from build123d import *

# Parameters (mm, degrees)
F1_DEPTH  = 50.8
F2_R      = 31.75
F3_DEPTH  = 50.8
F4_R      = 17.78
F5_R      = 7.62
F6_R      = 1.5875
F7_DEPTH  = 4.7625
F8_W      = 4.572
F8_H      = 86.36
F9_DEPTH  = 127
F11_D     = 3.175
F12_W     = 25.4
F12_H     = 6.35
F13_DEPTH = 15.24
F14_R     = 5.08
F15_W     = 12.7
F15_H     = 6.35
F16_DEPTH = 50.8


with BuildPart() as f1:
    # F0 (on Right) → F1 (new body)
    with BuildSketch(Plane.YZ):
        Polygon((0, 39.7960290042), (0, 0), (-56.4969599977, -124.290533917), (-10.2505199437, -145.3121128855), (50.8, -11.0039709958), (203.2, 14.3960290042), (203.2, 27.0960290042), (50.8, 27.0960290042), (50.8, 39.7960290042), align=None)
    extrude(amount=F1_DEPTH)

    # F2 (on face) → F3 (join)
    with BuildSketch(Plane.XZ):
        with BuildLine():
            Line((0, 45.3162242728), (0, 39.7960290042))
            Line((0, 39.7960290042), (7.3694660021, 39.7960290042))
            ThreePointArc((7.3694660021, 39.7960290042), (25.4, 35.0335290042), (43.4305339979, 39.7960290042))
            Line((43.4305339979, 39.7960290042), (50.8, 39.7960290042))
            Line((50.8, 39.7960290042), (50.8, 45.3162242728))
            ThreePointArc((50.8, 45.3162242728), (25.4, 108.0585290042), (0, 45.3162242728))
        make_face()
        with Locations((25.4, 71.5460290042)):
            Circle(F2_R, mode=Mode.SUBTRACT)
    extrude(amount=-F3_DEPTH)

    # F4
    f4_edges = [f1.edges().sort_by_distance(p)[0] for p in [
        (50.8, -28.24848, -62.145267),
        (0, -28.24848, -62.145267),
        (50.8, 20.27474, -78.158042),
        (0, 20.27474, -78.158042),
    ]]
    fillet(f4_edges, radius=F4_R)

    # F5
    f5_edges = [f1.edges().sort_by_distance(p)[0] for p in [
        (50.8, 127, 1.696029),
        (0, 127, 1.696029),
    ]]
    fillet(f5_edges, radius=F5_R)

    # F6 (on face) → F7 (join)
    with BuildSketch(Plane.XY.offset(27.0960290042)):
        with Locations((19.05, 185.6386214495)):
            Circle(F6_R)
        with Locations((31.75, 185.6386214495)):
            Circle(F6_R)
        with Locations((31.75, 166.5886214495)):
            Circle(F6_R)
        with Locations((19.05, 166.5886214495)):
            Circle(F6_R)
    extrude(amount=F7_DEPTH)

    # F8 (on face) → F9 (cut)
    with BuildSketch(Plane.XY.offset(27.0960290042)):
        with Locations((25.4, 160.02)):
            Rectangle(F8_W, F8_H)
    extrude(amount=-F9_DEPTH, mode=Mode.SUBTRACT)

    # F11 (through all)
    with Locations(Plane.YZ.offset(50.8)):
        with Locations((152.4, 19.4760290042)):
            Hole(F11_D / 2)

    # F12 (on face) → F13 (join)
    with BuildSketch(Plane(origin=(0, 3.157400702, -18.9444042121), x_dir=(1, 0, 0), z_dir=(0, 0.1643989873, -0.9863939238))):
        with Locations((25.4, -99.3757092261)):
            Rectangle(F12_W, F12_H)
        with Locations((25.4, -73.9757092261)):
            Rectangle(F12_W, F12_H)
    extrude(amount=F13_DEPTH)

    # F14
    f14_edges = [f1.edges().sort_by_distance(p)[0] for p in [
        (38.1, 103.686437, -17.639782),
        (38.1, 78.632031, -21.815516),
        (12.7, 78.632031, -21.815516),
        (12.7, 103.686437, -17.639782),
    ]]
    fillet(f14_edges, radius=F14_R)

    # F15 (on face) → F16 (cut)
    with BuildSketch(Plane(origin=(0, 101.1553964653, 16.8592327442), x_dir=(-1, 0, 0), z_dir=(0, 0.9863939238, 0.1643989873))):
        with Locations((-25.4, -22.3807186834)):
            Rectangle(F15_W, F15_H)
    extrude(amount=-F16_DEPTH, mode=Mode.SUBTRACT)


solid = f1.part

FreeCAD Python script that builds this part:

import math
import FreeCAD as App
import Part
import Sketcher
Q = App.Units.Quantity


def edges_at(feature, points):
    """Names of the edges that pass closest to the given points."""
    edges = feature.Shape.Edges
    near = lambda p: min(range(len(edges)), key=lambda i: edges[i].distToShape(Part.Vertex(*p))[0])
    return sorted({f"Edge{near(p) + 1}" for p in points})


def add_polygon(sketch, points):
    """Adds a closed chain of lines whose ends are joined by coincident constraints."""
    first, n = sketch.GeometryCount, len(points)
    for a, b in zip(points, points[1:] + points[:1]):
        sketch.addGeometry(Part.LineSegment(App.Vector(*a, 0), App.Vector(*b, 0)), False)
    for i in range(n):
        sketch.addConstraint(Sketcher.Constraint("Coincident", first + i, 2, first + (i + 1) % n, 1))

doc = App.newDocument("Part")
body = doc.addObject("PartDesign::Body", "Body")

# Sketch on YZ plane
sketch1 = doc.addObject("Sketcher::SketchObject", "Sketch")
body.addObject(sketch1)
sketch1.AttachmentSupport = (doc.YZ_Plane, [""])
sketch1.MapMode = "FlatFace"
add_polygon(sketch1, [(0, 40), (0, 0), (-56, -124), (-10, -145), (51, -11), (203, 14), (203, 27), (51, 27), (51, 40)])  # lines 0-8
sketch1.addConstraint([
    Sketcher.Constraint("Vertical", 0),
    Sketcher.Constraint("Vertical", 5),
    Sketcher.Constraint("Horizontal", 6),
    Sketcher.Constraint("Vertical", 7),
    Sketcher.Constraint("Horizontal", 8),
    Sketcher.Constraint("Coincident", 0, 2, -1, 1),
    Sketcher.Constraint("Perpendicular", 1, 2),
    Sketcher.Constraint("Perpendicular", 2, 3),
    Sketcher.Constraint("Vertical", 3, 2, 6, 2),
    Sketcher.Constraint("Equal", 5, 7),
    Sketcher.Constraint("DistanceX", 6, 2, 6, 1, Q("6 in")),
    Sketcher.Constraint("DistanceX", 8, 2, 8, 1, Q("2 in")),
    Sketcher.Constraint("Distance", 2, Q("2 in")),
    Sketcher.Constraint("DistanceY", 5, 1, 5, 2, Q("0.5 in")),
    Sketcher.Constraint("DistanceY", 3, 2, 4, 2, Q("1 in")),
    Sketcher.Constraint("DistanceY", 0, 2, 0, 1, Q("39.796029 mm")),
    Sketcher.Constraint("DistanceX", 1, 2, -1, 1, Q("56.49696 mm")),
])
pad1 = doc.addObject("PartDesign::Pad", "Pad")
body.addObject(pad1)
pad1.Profile = sketch1
pad1.Length = Q("2 in")

# Sketch on XZ plane
sketch2 = doc.addObject("Sketcher::SketchObject", "Sketch001")
body.addObject(sketch2)
sketch2.AttachmentSupport = (doc.XZ_Plane, [""])
sketch2.MapMode = "FlatFace"
sketch2.addGeometry([
    Part.LineSegment(App.Vector(0, 45, 0), App.Vector(0, 40, 0)),  # 0
    Part.LineSegment(App.Vector(0, 40, 0), App.Vector(7, 40, 0)),  # 1
    Part.ArcOfCircle(Part.Circle(App.Vector(25, 72, 0), App.Vector(0, 0, 1), 37), math.radians(-120), math.radians(-60)),  # 2
    Part.LineSegment(App.Vector(43, 40, 0), App.Vector(51, 40, 0)),  # 3
    Part.LineSegment(App.Vector(51, 40, 0), App.Vector(51, 45, 0)),  # 4
    Part.ArcOfCircle(Part.Circle(App.Vector(25, 72, 0), App.Vector(0, 0, 1), 37), math.radians(-46), math.radians(226)),  # 5
    Part.Circle(App.Vector(25, 72, 0), App.Vector(0, 0, 1), 32),  # 6
], False)
sketch2.addConstraint([
    Sketcher.Constraint("Coincident", 0, 2, 1, 1),
    Sketcher.Constraint("Coincident", 1, 2, 2, 1),
    Sketcher.Constraint("Coincident", 2, 2, 3, 1),
    Sketcher.Constraint("Coincident", 3, 2, 4, 1),
    Sketcher.Constraint("Coincident", 4, 2, 5, 1),
    Sketcher.Constraint("Coincident", 5, 2, 0, 1),
    Sketcher.Constraint("Vertical", 0),
    Sketcher.Constraint("Horizontal", 1),
    Sketcher.Constraint("Horizontal", 3),
    Sketcher.Constraint("Vertical", 4),
    Sketcher.Constraint("Coincident", 5, 3, 2, 3),
    Sketcher.Constraint("Coincident", 6, 3, 2, 3),
    Sketcher.Constraint("Equal", 2, 5),
    Sketcher.Constraint("PointOnObject", 0, 2, -2),
    Sketcher.Constraint("Horizontal", 1, 2, 2, 2),
    Sketcher.Constraint("Horizontal", 4, 2, 5, 2),
    Sketcher.Constraint("Diameter", 6, Q("2.5 in")),
    Sketcher.Constraint("DistanceX", -1, 1, 2, 3, Q("1 in")),
    Sketcher.Constraint("Radius", 2, Q("1.4375 in")),
    Sketcher.Constraint("DistanceY", 0, 2, 2, 3, Q("1.25 in")),
    Sketcher.Constraint("DistanceY", -1, 1, 2, 3, Q("71.546029 mm")),
])
pad2 = doc.addObject("PartDesign::Pad", "Pad001")
body.addObject(pad2)
pad2.Profile = sketch2
pad2.Length = Q("2 in")
pad2.Reversed = True
doc.recompute()

fillet = doc.addObject("PartDesign::Fillet", "Fillet")
body.addObject(fillet)
fillet.Base = (pad2, edges_at(pad2, [
    (50.8, -28.248, -62.145),
    (0, -28.248, -62.145),
    (50.8, 20.275, -78.158),
    (0, 20.275, -78.158),
]))
fillet.Radius = Q("0.7 in")
doc.recompute()

fillet2 = doc.addObject("PartDesign::Fillet", "Fillet001")
body.addObject(fillet2)
fillet2.Base = (fillet, edges_at(fillet, [(50.8, 116.434, -0.065), (0, 116.434, -0.065)]))
fillet2.Radius = Q("0.3 in")

# Sketch on XY plane
sketch3 = doc.addObject("Sketcher::SketchObject", "Sketch002")
body.addObject(sketch3)
sketch3.AttachmentSupport = (doc.XY_Plane, [""])
sketch3.MapMode = "FlatFace"
sketch3.AttachmentOffset = App.Placement(App.Vector(0, 0, 27.096029), App.Rotation())
sketch3.addGeometry([
    Part.Circle(App.Vector(19.1, 185.6, 0), App.Vector(0, 0, 1), 1.6),
    Part.Circle(App.Vector(31.8, 185.6, 0), App.Vector(0, 0, 1), 1.6),
    Part.Circle(App.Vector(31.8, 166.6, 0), App.Vector(0, 0, 1), 1.6),
    Part.Circle(App.Vector(19.1, 166.6, 0), App.Vector(0, 0, 1), 1.6),
], False)
sketch3.addConstraint([
    Sketcher.Constraint("Equal", 0, 1),
    Sketcher.Constraint("Equal", 1, 2),
    Sketcher.Constraint("Equal", 2, 3),
    Sketcher.Constraint("Horizontal", 0, 3, 1, 3),
    Sketcher.Constraint("Horizontal", 2, 3, 3, 3),
    Sketcher.Constraint("Vertical", 1, 3, 2, 3),
    Sketcher.Constraint("Vertical", 0, 3, 3, 3),
    Sketcher.Constraint("Diameter", 0, Q("0.125 in")),
    Sketcher.Constraint("DistanceX", 0, 3, 1, 3, Q("0.5 in")),
    Sketcher.Constraint("DistanceX", -1, 1, 0, 3, Q("0.75 in")),
    Sketcher.Constraint("DistanceY", 2, 3, 1, 3, Q("0.75 in")),
    Sketcher.Constraint("DistanceY", -1, 1, 0, 3, Q("185.638621 mm")),
])
pad3 = doc.addObject("PartDesign::Pad", "Pad002")
body.addObject(pad3)
pad3.Profile = sketch3
pad3.Length = Q("0.1875 in")

# Sketch on XY plane
sketch4 = doc.addObject("Sketcher::SketchObject", "Sketch003")
body.addObject(sketch4)
sketch4.AttachmentSupport = (doc.XY_Plane, [""])
sketch4.MapMode = "FlatFace"
sketch4.AttachmentOffset = App.Placement(App.Vector(0, 0, 27.096029), App.Rotation())
add_polygon(sketch4, [(23.1, 203.2), (23.1, 116.8), (27.7, 116.8), (27.7, 203.2)])  # lines 0-3
sketch4.addConstraint([
    Sketcher.Constraint("Vertical", 0),
    Sketcher.Constraint("Horizontal", 1),
    Sketcher.Constraint("Vertical", 2),
    Sketcher.Constraint("Horizontal", 3),
    Sketcher.Constraint("DistanceY", 0, 2, 0, 1, Q("3.4 in")),
    Sketcher.Constraint("DistanceY", -1, 1, 2, 2, Q("8 in")),
    Sketcher.Constraint("DistanceX", 1, 1, 1, 2, Q("0.18 in")),
    Sketcher.Constraint("DistanceX", -1, 1, 0, 2, Q("0.91 in")),
])
pocket1 = doc.addObject("PartDesign::Pocket", "Pocket")
body.addObject(pocket1)
pocket1.Profile = sketch4
pocket1.Length = Q("5 in")

# Sketch on YZ plane
sketch5 = doc.addObject("Sketcher::SketchObject", "Sketch004")
body.addObject(sketch5)
sketch5.AttachmentSupport = (doc.YZ_Plane, [""])
sketch5.MapMode = "FlatFace"
sketch5.AttachmentOffset = App.Placement(App.Vector(0, 0, 2 * 25.4), App.Rotation())
sketch5.addGeometry(Part.Circle(App.Vector(152.4, 19.5, 0), App.Vector(0, 0, 1), 1.6), False)
sketch5.addConstraint([
    Sketcher.Constraint("Diameter", 0, Q("0.125 in")),
    Sketcher.Constraint("DistanceX", -1, 1, 0, 3, Q("6 in")),
    Sketcher.Constraint("DistanceY", -1, 1, 0, 3, Q("19.476029 mm")),
])
doc.recompute()
hole = doc.addObject("PartDesign::Hole", "Hole")
body.addObject(hole)
hole.Profile = sketch5
hole.ThreadType = "None"
hole.Diameter = Q("0.125 in")
hole.DepthType = "ThroughAll"

# Sketch on an angled plane
sketch6 = doc.addObject("Sketcher::SketchObject", "Sketch005")
body.addObject(sketch6)
sketch6.Placement = App.Placement(App.Vector(0, 3.157401, -18.944404), App.Rotation(App.Vector(1, 0, 0), App.Vector(0, -0.986393924, -0.164398987), App.Vector(0, 0.164398987, -0.986393924), "ZXY"))
add_polygon(sketch6, [(13, -96), (13, -103), (38, -103), (38, -96)])  # lines 0-3
add_polygon(sketch6, [(13, -71), (13, -77), (38, -77), (38, -71)])  # lines 4-7
sketch6.addConstraint([
    Sketcher.Constraint("Vertical", 0),
    Sketcher.Constraint("Horizontal", 1),
    Sketcher.Constraint("Vertical", 2),
    Sketcher.Constraint("Horizontal", 3),
    Sketcher.Constraint("Vertical", 4),
    Sketcher.Constraint("Horizontal", 5),
    Sketcher.Constraint("Vertical", 6),
    Sketcher.Constraint("Horizontal", 7),
    Sketcher.Constraint("Vertical", 3, 2, 4, 2),
    Sketcher.Constraint("Vertical", 2, 2, 5, 2),
    Sketcher.Constraint("Equal", 2, 4),
    Sketcher.Constraint("DistanceX", 1, 1, 1, 2, Q("1 in")),
    Sketcher.Constraint("DistanceY", 0, 2, 4, 2, Q("1 in")),
    Sketcher.Constraint("DistanceY", 0, 2, 0, 1, Q("0.25 in")),
    Sketcher.Constraint("DistanceX", -1, 1, 0, 2, Q("0.5 in")),
    Sketcher.Constraint("DistanceY", 0, 2, -1, 1, Q("102.550709 mm")),
])
pad4 = doc.addObject("PartDesign::Pad", "Pad003")
body.addObject(pad4)
pad4.Profile = sketch6
pad4.Length = Q("0.6 in")
doc.recompute()

fillet3 = doc.addObject("PartDesign::Fillet", "Fillet002")
body.addObject(fillet3)
fillet3.Base = (pad4, edges_at(pad4, [
    (38.1, 103.686, -17.64),
    (38.1, 78.632, -21.816),
    (12.7, 78.632, -21.816),
    (12.7, 103.686, -17.64),
]))
fillet3.Radius = Q("0.2 in")

# Sketch on an angled plane
sketch7 = doc.addObject("Sketcher::SketchObject", "Sketch006")
body.addObject(sketch7)
sketch7.Placement = App.Placement(App.Vector(0, 101.155396, 16.859233), App.Rotation(App.Vector(-1, 0, 0), App.Vector(0, -0.164398987, 0.986393924), App.Vector(0, 0.986393924, 0.164398987), "ZXY"))
add_polygon(sketch7, [(-32, -19), (-32, -26), (-19, -26), (-19, -19)])  # lines 0-3
sketch7.addConstraint([
    Sketcher.Constraint("Vertical", 0),
    Sketcher.Constraint("Horizontal", 1),
    Sketcher.Constraint("Vertical", 2),
    Sketcher.Constraint("Horizontal", 3),
    Sketcher.Constraint("DistanceX", 1, 1, 1, 2, Q("0.5 in")),
    Sketcher.Constraint("DistanceY", 0, 2, 0, 1, Q("0.25 in")),
    Sketcher.Constraint("DistanceX", 0, 2, -1, 1, Q("1.25 in")),
    Sketcher.Constraint("DistanceY", 0, 2, -1, 1, Q("25.555719 mm")),
])
pocket2 = doc.addObject("PartDesign::Pocket", "Pocket001")
body.addObject(pocket2)
pocket2.Profile = sketch7
pocket2.Length = Q("2 in")

doc.recompute()
